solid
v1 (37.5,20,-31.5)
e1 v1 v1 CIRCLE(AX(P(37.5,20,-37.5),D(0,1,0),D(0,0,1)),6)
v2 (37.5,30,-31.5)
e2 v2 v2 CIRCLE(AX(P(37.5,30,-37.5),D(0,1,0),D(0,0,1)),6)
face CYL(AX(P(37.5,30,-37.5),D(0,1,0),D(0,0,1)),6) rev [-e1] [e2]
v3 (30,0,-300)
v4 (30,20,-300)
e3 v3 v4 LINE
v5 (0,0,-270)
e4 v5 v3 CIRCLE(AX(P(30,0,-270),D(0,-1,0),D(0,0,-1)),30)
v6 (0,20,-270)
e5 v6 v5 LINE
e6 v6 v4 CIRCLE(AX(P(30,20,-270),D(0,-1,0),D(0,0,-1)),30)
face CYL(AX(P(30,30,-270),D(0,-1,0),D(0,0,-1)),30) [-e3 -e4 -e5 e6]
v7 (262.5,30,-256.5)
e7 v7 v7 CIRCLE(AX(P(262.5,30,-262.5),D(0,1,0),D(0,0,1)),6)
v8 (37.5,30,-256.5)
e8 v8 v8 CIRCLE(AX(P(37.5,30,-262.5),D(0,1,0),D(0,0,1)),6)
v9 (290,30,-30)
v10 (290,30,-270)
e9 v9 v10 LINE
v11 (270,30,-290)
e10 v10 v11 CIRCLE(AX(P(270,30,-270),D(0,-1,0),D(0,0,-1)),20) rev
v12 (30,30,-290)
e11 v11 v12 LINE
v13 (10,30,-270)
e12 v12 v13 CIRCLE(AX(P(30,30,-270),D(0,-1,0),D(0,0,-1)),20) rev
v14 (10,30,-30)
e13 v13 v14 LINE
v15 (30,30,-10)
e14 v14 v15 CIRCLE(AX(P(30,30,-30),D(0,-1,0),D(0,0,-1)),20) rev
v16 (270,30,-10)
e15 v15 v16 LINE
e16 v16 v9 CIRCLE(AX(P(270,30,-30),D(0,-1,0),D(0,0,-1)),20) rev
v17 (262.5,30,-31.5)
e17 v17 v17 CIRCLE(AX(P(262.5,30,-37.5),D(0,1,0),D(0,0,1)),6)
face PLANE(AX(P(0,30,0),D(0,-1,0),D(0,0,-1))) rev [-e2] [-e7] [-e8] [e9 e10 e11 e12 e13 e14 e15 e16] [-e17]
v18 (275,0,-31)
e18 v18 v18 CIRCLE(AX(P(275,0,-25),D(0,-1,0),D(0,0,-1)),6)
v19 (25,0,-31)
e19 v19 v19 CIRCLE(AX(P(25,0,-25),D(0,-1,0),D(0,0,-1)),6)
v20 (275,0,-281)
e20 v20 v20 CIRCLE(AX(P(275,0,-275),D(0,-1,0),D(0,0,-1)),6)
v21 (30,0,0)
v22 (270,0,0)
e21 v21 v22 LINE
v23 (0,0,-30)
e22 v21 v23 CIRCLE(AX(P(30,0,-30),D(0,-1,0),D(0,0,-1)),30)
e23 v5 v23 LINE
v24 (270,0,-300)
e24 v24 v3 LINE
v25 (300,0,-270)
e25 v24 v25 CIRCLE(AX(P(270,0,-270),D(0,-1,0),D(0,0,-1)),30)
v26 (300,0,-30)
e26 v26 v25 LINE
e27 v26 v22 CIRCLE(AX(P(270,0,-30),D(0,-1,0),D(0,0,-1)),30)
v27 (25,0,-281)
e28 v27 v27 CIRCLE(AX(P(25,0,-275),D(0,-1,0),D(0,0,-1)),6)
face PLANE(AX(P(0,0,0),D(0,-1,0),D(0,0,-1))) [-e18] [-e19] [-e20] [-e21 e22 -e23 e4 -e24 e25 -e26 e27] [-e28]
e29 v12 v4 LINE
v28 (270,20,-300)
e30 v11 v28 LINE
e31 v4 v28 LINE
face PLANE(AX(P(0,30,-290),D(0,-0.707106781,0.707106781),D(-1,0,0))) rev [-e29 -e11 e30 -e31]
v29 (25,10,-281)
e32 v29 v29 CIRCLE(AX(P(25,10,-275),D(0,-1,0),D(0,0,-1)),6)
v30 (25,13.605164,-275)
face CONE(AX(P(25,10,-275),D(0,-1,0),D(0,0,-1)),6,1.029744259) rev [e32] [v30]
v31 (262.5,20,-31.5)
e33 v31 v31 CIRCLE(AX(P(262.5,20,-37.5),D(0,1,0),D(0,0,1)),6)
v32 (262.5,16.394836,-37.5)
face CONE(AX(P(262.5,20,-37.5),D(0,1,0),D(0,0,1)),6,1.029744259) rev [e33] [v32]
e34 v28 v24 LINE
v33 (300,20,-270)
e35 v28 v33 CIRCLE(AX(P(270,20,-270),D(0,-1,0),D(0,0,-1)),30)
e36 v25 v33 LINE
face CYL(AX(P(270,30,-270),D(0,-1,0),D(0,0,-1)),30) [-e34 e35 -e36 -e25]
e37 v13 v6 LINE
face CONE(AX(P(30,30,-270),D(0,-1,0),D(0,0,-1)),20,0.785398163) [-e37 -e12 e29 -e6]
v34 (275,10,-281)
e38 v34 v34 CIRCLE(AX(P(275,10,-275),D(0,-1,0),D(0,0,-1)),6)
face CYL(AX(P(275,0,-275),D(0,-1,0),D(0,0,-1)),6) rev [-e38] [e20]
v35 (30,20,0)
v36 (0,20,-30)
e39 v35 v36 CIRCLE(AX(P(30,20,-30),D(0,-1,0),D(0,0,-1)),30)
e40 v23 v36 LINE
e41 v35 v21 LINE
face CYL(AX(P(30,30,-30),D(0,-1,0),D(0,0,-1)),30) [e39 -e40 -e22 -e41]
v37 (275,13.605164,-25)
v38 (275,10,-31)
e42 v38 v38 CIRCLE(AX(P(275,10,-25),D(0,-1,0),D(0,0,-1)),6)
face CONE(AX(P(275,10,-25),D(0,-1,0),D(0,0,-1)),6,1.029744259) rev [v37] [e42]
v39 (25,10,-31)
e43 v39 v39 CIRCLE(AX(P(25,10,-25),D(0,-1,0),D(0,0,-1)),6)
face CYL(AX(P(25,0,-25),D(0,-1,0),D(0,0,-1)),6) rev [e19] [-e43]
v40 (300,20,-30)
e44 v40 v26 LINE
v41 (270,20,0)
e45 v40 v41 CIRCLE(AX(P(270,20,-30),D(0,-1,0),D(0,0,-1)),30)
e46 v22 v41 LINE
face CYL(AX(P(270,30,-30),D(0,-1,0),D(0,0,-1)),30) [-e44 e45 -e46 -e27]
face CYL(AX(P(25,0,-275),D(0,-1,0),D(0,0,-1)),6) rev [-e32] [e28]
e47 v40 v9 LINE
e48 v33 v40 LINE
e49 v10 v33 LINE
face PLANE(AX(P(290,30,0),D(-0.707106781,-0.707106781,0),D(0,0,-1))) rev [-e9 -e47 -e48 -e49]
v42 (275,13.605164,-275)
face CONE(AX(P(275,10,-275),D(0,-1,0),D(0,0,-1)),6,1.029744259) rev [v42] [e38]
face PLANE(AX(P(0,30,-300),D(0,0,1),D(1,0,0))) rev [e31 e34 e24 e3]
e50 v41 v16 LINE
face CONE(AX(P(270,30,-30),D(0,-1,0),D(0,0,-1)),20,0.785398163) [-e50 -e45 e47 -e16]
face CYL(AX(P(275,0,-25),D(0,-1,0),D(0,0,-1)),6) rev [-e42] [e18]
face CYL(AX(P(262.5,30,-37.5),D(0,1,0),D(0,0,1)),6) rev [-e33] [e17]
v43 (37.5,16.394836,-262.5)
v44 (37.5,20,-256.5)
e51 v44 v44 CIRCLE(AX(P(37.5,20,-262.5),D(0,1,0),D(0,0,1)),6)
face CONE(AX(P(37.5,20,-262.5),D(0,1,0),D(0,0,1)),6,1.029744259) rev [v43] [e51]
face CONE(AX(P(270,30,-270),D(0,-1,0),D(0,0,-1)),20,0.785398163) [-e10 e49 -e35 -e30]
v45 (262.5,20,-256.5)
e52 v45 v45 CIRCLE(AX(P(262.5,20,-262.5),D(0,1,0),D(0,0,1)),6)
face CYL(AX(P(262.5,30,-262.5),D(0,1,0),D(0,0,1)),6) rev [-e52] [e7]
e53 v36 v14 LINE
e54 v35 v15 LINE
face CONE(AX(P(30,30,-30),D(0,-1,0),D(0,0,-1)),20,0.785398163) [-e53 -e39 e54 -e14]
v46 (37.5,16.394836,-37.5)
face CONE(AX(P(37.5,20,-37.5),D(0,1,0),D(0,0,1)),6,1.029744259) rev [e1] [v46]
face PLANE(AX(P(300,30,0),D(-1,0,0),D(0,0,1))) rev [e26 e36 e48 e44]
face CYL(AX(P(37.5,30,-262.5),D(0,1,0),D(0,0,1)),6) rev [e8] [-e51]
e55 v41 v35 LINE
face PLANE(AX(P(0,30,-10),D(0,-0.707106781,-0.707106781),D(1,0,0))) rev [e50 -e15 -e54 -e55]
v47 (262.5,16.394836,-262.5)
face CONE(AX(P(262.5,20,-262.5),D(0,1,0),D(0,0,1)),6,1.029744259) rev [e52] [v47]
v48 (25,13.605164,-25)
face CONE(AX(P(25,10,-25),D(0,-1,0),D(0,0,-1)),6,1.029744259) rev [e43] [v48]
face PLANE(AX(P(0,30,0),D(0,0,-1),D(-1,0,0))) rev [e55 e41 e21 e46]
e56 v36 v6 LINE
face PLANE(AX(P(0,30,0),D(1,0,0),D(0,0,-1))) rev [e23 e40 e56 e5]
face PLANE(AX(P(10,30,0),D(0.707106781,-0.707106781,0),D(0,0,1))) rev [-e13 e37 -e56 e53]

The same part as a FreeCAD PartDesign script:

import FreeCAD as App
import Part
import Sketcher
from FreeCAD import Vector
Q = App.Units.Quantity


def edges_at(feature, points):
    """Names of the edges that pass closest to the given points."""
    edges = feature.Shape.Edges
    near = lambda p: min(range(len(edges)), key=lambda i: edges[i].distToShape(Part.Vertex(*p))[0])
    return sorted({f"Edge{near(p) + 1}" for p in points})


def add_polygon(sketch, points):
    """Adds a closed chain of lines whose ends are joined by coincident constraints."""
    first, n = sketch.GeometryCount, len(points)
    for a, b in zip(points, points[1:] + points[:1]):
        sketch.addGeometry(Part.LineSegment(App.Vector(*a, 0), App.Vector(*b, 0)), False)
    for i in range(n):
        sketch.addConstraint(Sketcher.Constraint("Coincident", first + i, 2, first + (i + 1) % n, 1))

doc = App.newDocument("Part")
body = doc.addObject("PartDesign::Body", "Body")

sketch1 = doc.addObject("Sketcher::SketchObject", "Sketch")
body.addObject(sketch1)
sketch1.AttachmentSupport = (doc.XZ_Plane, [""])
sketch1.MapMode = "FlatFace"
add_polygon(sketch1, [(0, -300), (0, 0), (300, 0), (300, -300)])
sketch1.addConstraint(Sketcher.Constraint("Vertical", 0))
sketch1.addConstraint(Sketcher.Constraint("Horizontal", 1))
sketch1.addConstraint(Sketcher.Constraint("Vertical", 2))
sketch1.addConstraint(Sketcher.Constraint("Horizontal", 3))
sketch1.addConstraint(Sketcher.Constraint("Coincident", 0, 2, -1, 1))
sketch1.addConstraint(Sketcher.Constraint("Equal", 3, 0))
sketch1.addConstraint(Sketcher.Constraint("DistanceX", 1, 1, 1, 2, Q("300 mm")))
pad1 = doc.addObject("PartDesign::Pad", "Pad")
body.addObject(pad1)
pad1.Profile = sketch1
pad1.Length = 30
pad1.Reversed = True
doc.recompute()

fillet = doc.addObject("PartDesign::Fillet", "Fillet")
body.addObject(fillet)
fillet.Base = (pad1, edges_at(pad1, [
    (0, 15, -300),
    (300, 15, -300),
    (300, 15, 0),
    (0, 15, 0),
]))
fillet.Radius = 30
doc.recompute()

chamfer = doc.addObject("PartDesign::Chamfer", "Chamfer")
body.addObject(chamfer)
chamfer.Base = (fillet, edges_at(fillet, [
    (0, 30, -150),
    (150, 30, -300),
    (150, 30, 0),
    (300, 30, -150),
    (8.787, 30, -8.787),
    (291.213, 30, -8.787),
    (291.213, 30, -291.213),
    (8.787, 30, -291.213),
]))
chamfer.Size = 10

sketch2 = doc.addObject("Sketcher::SketchObject", "Sketch001")
body.addObject(sketch2)
sketch2.AttachmentSupport = (doc.XZ_Plane, [""])
sketch2.MapMode = "FlatFace"
sketch2.AttachmentOffset = App.Placement(Vector(0, 0, -30), App.Rotation())
sketch2.addGeometry(Part.Circle(Vector(38, -38, 0), Vector(0, 0, 1), 6), False)
sketch2.addGeometry(Part.Circle(Vector(38, -262, 0), Vector(0, 0, 1), 6), False)
sketch2.addGeometry(Part.Circle(Vector(262, -262, 0), Vector(0, 0, 1), 6), False)
sketch2.addGeometry(Part.Circle(Vector(262, -38, 0), Vector(0, 0, 1), 6), False)
sketch2.addConstraint(Sketcher.Constraint("Equal", 0, 1))
sketch2.addConstraint(Sketcher.Constraint("Equal", 1, 2))
sketch2.addConstraint(Sketcher.Constraint("Equal", 2, 3))
sketch2.addConstraint(Sketcher.Constraint("Horizontal", 1, 3, 2, 3))
sketch2.addConstraint(Sketcher.Constraint("Horizontal", 0, 3, 3, 3))
sketch2.addConstraint(Sketcher.Constraint("Vertical", 0, 3, 1, 3))
sketch2.addConstraint(Sketcher.Constraint("Vertical", 2, 3, 3, 3))
sketch2.addConstraint(Sketcher.Constraint("Diameter", 0, Q("12 mm")))
sketch2.addConstraint(Sketcher.Constraint("DistanceY", 1, 3, 0, 3, Q("225 mm")))
sketch2.addConstraint(Sketcher.Constraint("DistanceX", 1, 3, 2, 3, Q("225 mm")))
sketch2.addConstraint(Sketcher.Constraint("DistanceX", -1, 1, 0, 3, Q("37.5 mm")))
sketch2.addConstraint(Sketcher.Constraint("DistanceY", 0, 3, -1, 1, Q("37.5 mm")))
doc.recompute()
hole = doc.addObject("PartDesign::Hole", "Hole")
body.addObject(hole)
hole.Profile = sketch2
hole.ThreadType = "None"
hole.Diameter = 12
hole.DepthType = "Dimension"
hole.Depth = 10
hole.DrillPoint = "Angled"
hole.DrillPointAngle = 118
hole.Reversed = True

sketch3 = doc.addObject("Sketcher::SketchObject", "Sketch002")
body.addObject(sketch3)
sketch3.AttachmentSupport = (doc.XZ_Plane, [""])
sketch3.MapMode = "FlatFace"
sketch3.addGeometry(Part.Circle(Vector(25, -25, 0), Vector(0, 0, 1), 6), False)
sketch3.addGeometry(Part.Circle(Vector(275, -25, 0), Vector(0, 0, 1), 6), False)
sketch3.addGeometry(Part.Circle(Vector(275, -275, 0), Vector(0, 0, 1), 6), False)
sketch3.addGeometry(Part.Circle(Vector(25, -275, 0), Vector(0, 0, 1), 6), False)
sketch3.addConstraint(Sketcher.Constraint("Equal", 0, 1))
sketch3.addConstraint(Sketcher.Constraint("Equal", 1, 2))
sketch3.addConstraint(Sketcher.Constraint("Equal", 2, 3))
sketch3.addConstraint(Sketcher.Constraint("Horizontal", 0, 3, 1, 3))
sketch3.addConstraint(Sketcher.Constraint("Horizontal", 2, 3, 3, 3))
sketch3.addConstraint(Sketcher.Constraint("Vertical", 1, 3, 2, 3))
sketch3.addConstraint(Sketcher.Constraint("Vertical", 0, 3, 3, 3))
sketch3.addConstraint(Sketcher.Constraint("Diameter", 0, Q("12 mm")))
sketch3.addConstraint(Sketcher.Constraint("DistanceX", -1, 1, 0, 3, Q("25 mm")))
sketch3.addConstraint(Sketcher.Constraint("DistanceY", 0, 3, -1, 1, Q("25 mm")))
sketch3.addConstraint(Sketcher.Constraint("DistanceX", -1, 1, 1, 3, Q("275 mm")))
sketch3.addConstraint(Sketcher.Constraint("DistanceY", 2, 3, -1, 1, Q("275 mm")))
doc.recompute()
hole2 = doc.addObject("PartDesign::Hole", "Hole001")
body.addObject(hole2)
hole2.Profile = sketch3
hole2.ThreadType = "None"
hole2.Diameter = 12
hole2.DepthType = "Dimension"
hole2.Depth = 10
hole2.DrillPoint = "Angled"
hole2.DrillPointAngle = 118

doc.recompute()
